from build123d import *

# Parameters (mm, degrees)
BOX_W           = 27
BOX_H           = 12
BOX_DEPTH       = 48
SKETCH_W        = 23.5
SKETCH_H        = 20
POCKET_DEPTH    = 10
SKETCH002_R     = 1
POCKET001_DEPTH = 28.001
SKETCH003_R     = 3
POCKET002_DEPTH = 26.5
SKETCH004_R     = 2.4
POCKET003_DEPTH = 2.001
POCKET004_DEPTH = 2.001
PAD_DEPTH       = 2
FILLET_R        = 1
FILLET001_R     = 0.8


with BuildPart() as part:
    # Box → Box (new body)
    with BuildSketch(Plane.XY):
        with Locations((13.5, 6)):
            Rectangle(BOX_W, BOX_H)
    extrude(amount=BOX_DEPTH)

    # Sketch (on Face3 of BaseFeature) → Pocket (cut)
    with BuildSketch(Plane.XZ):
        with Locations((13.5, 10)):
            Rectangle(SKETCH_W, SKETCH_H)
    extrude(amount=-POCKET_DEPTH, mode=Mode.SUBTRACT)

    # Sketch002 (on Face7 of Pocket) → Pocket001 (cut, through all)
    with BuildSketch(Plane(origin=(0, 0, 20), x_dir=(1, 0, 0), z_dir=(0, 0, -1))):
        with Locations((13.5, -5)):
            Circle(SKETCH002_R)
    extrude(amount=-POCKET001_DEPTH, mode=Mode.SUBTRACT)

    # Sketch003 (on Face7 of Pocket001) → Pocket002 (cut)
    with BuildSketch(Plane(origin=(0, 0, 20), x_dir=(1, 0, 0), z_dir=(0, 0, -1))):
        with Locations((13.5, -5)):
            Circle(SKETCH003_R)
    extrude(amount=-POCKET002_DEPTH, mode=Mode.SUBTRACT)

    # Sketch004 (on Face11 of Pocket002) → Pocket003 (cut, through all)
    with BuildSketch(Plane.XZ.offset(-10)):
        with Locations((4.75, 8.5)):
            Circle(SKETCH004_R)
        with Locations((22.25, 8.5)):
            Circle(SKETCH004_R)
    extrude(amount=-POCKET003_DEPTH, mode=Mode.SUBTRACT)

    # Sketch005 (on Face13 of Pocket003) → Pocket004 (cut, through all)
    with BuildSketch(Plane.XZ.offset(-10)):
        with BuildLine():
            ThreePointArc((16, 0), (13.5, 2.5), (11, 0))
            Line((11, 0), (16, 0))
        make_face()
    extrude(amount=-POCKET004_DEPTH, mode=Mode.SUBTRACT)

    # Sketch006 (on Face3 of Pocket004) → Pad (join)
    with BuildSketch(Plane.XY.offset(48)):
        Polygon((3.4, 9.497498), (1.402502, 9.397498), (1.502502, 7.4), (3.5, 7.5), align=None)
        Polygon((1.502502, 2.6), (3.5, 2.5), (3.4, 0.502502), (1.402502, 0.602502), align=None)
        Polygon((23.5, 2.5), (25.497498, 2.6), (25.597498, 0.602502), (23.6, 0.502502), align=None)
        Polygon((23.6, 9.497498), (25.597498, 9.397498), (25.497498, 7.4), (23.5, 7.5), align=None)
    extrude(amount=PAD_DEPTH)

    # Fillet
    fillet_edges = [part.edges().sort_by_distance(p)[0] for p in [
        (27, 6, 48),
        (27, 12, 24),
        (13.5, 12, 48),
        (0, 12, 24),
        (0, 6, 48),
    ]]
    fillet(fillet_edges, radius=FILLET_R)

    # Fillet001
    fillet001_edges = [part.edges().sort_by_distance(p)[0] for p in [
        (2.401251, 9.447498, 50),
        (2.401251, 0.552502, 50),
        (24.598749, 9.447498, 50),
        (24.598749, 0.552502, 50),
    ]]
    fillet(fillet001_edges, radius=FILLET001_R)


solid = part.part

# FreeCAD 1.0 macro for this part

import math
import FreeCAD as App
import Part
import Sketcher

V = App.Vector
Q = App.Units.Quantity


def edges_at(feature, points):
    """Names of the edges that pass closest to the given points."""
    edges = feature.Shape.Edges
    near = lambda p: min(range(len(edges)), key=lambda i: edges[i].distToShape(Part.Vertex(*p))[0])
    return sorted({f"Edge{near(p) + 1}" for p in points})


def add_polygon(sketch, points):
    """Adds a closed chain of lines whose ends are joined by coincident constraints."""
    first, n = sketch.GeometryCount, len(points)
    for a, b in zip(points, points[1:] + points[:1]):
        sketch.addGeometry(Part.LineSegment(App.Vector(*a, 0), App.Vector(*b, 0)), False)
    for i in range(n):
        sketch.addConstraint(Sketcher.Constraint("Coincident", first + i, 2, first + (i + 1) % n, 1))

doc = App.newDocument("Part")
body = doc.addObject("PartDesign::Body", "Body")

# Sketch on XY plane
sketch1 = body.newObject("Sketcher::SketchObject", "Sketch")
sketch1.AttachmentSupport = (doc.getObject("XY_Plane"), [""])
sketch1.MapMode = "FlatFace"
add_polygon(sketch1, [(0, 12), (0, 0), (27, 0), (27, 12)])  # lines 0-3
sketch1.addConstraint([
    Sketcher.Constraint("Vertical", 0),
    Sketcher.Constraint("Horizontal", 1),
    Sketcher.Constraint("Vertical", 2),
    Sketcher.Constraint("Horizontal", 3),
    Sketcher.Constraint("Coincident", 0, 2, -1, 1),
    Sketcher.Constraint("DistanceX", 1, 1, 1, 2, Q("27 mm")),
    Sketcher.Constraint("DistanceY", 0, 2, 0, 1, Q("12 mm")),
])
pad1 = body.newObject("PartDesign::Pad", "Pad")
pad1.Profile = sketch1
pad1.Length = 48

# Sketch on XZ plane
sketch2 = body.newObject("Sketcher::SketchObject", "Sketch001")
sketch2.AttachmentSupport = (doc.getObject("XZ_Plane"), [""])
sketch2.MapMode = "FlatFace"
add_polygon(sketch2, [(2, 20), (2, 0), (25, 0), (25, 20)])  # lines 0-3
sketch2.addConstraint([
    Sketcher.Constraint("Vertical", 0),
    Sketcher.Constraint("Horizontal", 1),
    Sketcher.Constraint("Vertical", 2),
    Sketcher.Constraint("Horizontal", 3),
    Sketcher.Constraint("PointOnObject", 0, 2, -1),
    Sketcher.Constraint("DistanceY", 0, 2, 0, 1, Q("20 mm")),
    Sketcher.Constraint("DistanceX", 1, 1, 1, 2, Q("23.5 mm")),
    Sketcher.Constraint("DistanceX", -1, 1, 0, 2, Q("1.75 mm")),
])
pocket1 = body.newObject("PartDesign::Pocket", "Pocket")
pocket1.Profile = sketch2
pocket1.Length = 10

# Sketch on XY plane
sketch3 = body.newObject("Sketcher::SketchObject", "Sketch002")
sketch3.AttachmentSupport = (doc.getObject("XY_Plane"), [""])
sketch3.MapMode = "FlatFace"
sketch3.AttachmentOffset = App.Placement(V(0, 0, 20), App.Rotation())
sketch3.addGeometry(Part.Circle(V(13.5, 5, 0), V(0, 0, 1), 1), False)
sketch3.addConstraint([
    Sketcher.Constraint("Diameter", 0, Q("2 mm")),
    Sketcher.Constraint("DistanceY", -1, 1, 0, 3, Q("5 mm")),
    Sketcher.Constraint("DistanceX", -1, 1, 0, 3, Q("13.5 mm")),
])
pocket2 = body.newObject("PartDesign::Pocket", "Pocket001")
pocket2.Profile = sketch3
pocket2.Type = "ThroughAll"
pocket2.Reversed = True

# Sketch on XY plane
sketch4 = body.newObject("Sketcher::SketchObject", "Sketch003")
sketch4.AttachmentSupport = (doc.getObject("XY_Plane"), [""])
sketch4.MapMode = "FlatFace"
sketch4.AttachmentOffset = App.Placement(V(0, 0, 20), App.Rotation())
sketch4.addGeometry(Part.Circle(V(13.5, 5, 0), V(0, 0, 1), 3), False)
sketch4.addConstraint([
    Sketcher.Constraint("Diameter", 0, Q("6 mm")),
    Sketcher.Constraint("DistanceY", -1, 1, 0, 3, Q("5 mm")),
    Sketcher.Constraint("DistanceX", -1, 1, 0, 3, Q("13.5 mm")),
])
pocket3 = body.newObject("PartDesign::Pocket", "Pocket002")
pocket3.Profile = sketch4
pocket3.Length = 26.5
pocket3.Reversed = True

# Sketch on XZ plane
sketch5 = body.newObject("Sketcher::SketchObject", "Sketch004")
sketch5.AttachmentSupport = (doc.getObject("XZ_Plane"), [""])
sketch5.MapMode = "FlatFace"
sketch5.AttachmentOffset = App.Placement(V(0, 0, -10), App.Rotation())
sketch5.addGeometry([
    Part.Circle(V(4.8, 8.5, 0), V(0, 0, 1), 2.4),
    Part.Circle(V(22.2, 8.5, 0), V(0, 0, 1), 2.4),
], False)
sketch5.addConstraint([
    Sketcher.Constraint("Equal", 0, 1),
    Sketcher.Constraint("Horizontal", 0, 3, 1, 3),
    Sketcher.Constraint("Diameter", 0, Q("4.8 mm")),
    Sketcher.Constraint("DistanceY", -1, 1, 0, 3, Q("8.5 mm")),
    Sketcher.Constraint("DistanceX", 0, 3, 1, 3, Q("17.5 mm")),
    Sketcher.Constraint("DistanceX", -1, 1, 0, 3, Q("4.75 mm")),
])
pocket4 = body.newObject("PartDesign::Pocket", "Pocket003")
pocket4.Profile = sketch5
pocket4.Type = "ThroughAll"

# Sketch on XZ plane
sketch6 = body.newObject("Sketcher::SketchObject", "Sketch005")
sketch6.AttachmentSupport = (doc.getObject("XZ_Plane"), [""])
sketch6.MapMode = "FlatFace"
sketch6.AttachmentOffset = App.Placement(V(0, 0, -10), App.Rotation())
sketch6.addGeometry([
    Part.ArcOfCircle(Part.Circle(V(13.5, 0, 0), V(0, 0, 1), 2.5), math.radians(0), math.radians(180)),
    Part.LineSegment(V(11, 0, 0), V(16, 0, 0)),
], False)
sketch6.addConstraint([
    Sketcher.Constraint("Coincident", 0, 1, 1, 2),
    Sketcher.Constraint("Coincident", 1, 1, 0, 2),
    Sketcher.Constraint("Horizontal", 1),
    Sketcher.Constraint("PointOnObject", 0, 3, -1),
    Sketcher.Constraint("PointOnObject", 0, 1, -1),
    Sketcher.Constraint("Radius", 0, Q("2.5 mm")),
    Sketcher.Constraint("DistanceX", -1, 1, 0, 1, Q("16 mm")),
])
pocket5 = body.newObject("PartDesign::Pocket", "Pocket004")
pocket5.Profile = sketch6
pocket5.Type = "ThroughAll"

# Sketch on XY plane
sketch7 = body.newObject("Sketcher::SketchObject", "Sketch006")
sketch7.AttachmentSupport = (doc.getObject("XY_Plane"), [""])
sketch7.MapMode = "FlatFace"
sketch7.AttachmentOffset = App.Placement(V(0, 0, 48), App.Rotation())
add_polygon(sketch7, [(3.4, 9.5), (1.4, 9.4), (1.5, 7.4), (3.5, 7.5)])  # lines 0-3
add_polygon(sketch7, [(3.5, 2.5), (1.5, 2.6), (1.4, 0.6), (3.4, 0.5)])  # lines 4-7
add_polygon(sketch7, [(25.5, 2.6), (23.5, 2.5), (23.6, 0.5), (25.6, 0.6)])  # lines 8-11
add_polygon(sketch7, [(25.6, 9.4), (23.6, 9.5), (23.5, 7.5), (25.5, 7.4)])  # lines 12-15
sketch7.addConstraint([
    Sketcher.Constraint("Perpendicular", 0, 1),
    Sketcher.Constraint("Perpendicular", 1, 2),
    Sketcher.Constraint("Perpendicular", 2, 3),
    Sketcher.Constraint("Perpendicular", 4, 5),
    Sketcher.Constraint("Perpendicular", 5, 6),
    Sketcher.Constraint("Perpendicular", 6, 7),
    Sketcher.Constraint("Perpendicular", 3, 8),
    Sketcher.Constraint("Perpendicular", 8, 9),
    Sketcher.Constraint("Perpendicular", 9, 10),
    Sketcher.Constraint("Perpendicular", 10, 11),
    Sketcher.Constraint("Perpendicular", 7, 12),
    Sketcher.Constraint("Perpendicular", 12, 13),
    Sketcher.Constraint("Perpendicular", 13, 14),
    Sketcher.Constraint("Perpendicular", 14, 15),
    Sketcher.Constraint("Horizontal", 7, 2, 8, 2),
    Sketcher.Constraint("Horizontal", 6, 2, 9, 2),
    Sketcher.Constraint("Horizontal", 5, 2, 10, 2),
    Sketcher.Constraint("Horizontal", 3, 2, 12, 2),
    Sketcher.Constraint("Horizontal", 2, 2, 13, 2),
    Sketcher.Constraint("Horizontal", 1, 2, 14, 2),
    Sketcher.Constraint("Vertical", 1, 2, 4, 2),
    Sketcher.Constraint("Vertical", 0, 2, 5, 2),
    Sketcher.Constraint("Vertical", 3, 2, 6, 2),
    Sketcher.Constraint("Vertical", 9, 2, 12, 2),
    Sketcher.Constraint("Vertical", 8, 2, 13, 2),
    Sketcher.Constraint("Equal", 0, 1),
    Sketcher.Constraint("Distance", 0, Q("2 mm")),
    Sketcher.Constraint("DistanceY", 7, 2, 2, 2, Q("5 mm")),
    Sketcher.Constraint("DistanceX", 7, 2, 8, 2, Q("20 mm")),
    Sketcher.Constraint("DistanceY", -1, 1, 1, 2, Q("7.4 mm")),
    Sketcher.Constraint("DistanceX", -1, 1, 2, 2, Q("3.5 mm")),
    Sketcher.Constraint("DistanceY", -1, 1, 2, 2, Q("7.5 mm")),
])
pad2 = body.newObject("PartDesign::Pad", "Pad001")
pad2.Profile = sketch7
pad2.Length = 2
doc.recompute()

fillet = body.newObject("PartDesign::Fillet", "Fillet")
fillet.Base = (pad2, edges_at(pad2, [
    (27, 6, 48),
    (27, 12, 24),
    (13.5, 12, 48),
    (0, 12, 24),
    (0, 6, 48),
]))
fillet.Radius = 1
doc.recompute()

fillet2 = body.newObject("PartDesign::Fillet", "Fillet001")
fillet2.Base = (fillet, edges_at(fillet, [
    (2.401, 9.447, 50),
    (2.401, 0.553, 50),
    (24.599, 9.447, 50),
    (24.599, 0.553, 50),
]))
fillet2.Radius = 0.8

doc.recompute()
